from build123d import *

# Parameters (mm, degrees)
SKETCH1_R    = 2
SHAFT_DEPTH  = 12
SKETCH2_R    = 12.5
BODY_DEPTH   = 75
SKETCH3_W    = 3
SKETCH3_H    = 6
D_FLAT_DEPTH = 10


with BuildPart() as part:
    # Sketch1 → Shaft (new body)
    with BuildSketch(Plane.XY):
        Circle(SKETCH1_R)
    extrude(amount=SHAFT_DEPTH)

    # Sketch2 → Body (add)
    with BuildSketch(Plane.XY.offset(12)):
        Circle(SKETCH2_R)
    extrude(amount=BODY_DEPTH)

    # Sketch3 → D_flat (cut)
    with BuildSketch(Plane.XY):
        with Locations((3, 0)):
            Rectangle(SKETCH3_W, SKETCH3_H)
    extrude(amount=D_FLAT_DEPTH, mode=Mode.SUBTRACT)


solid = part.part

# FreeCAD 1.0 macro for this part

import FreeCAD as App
import Part
import Sketcher

V = App.Vector
Q = App.Units.Quantity


def add_polygon(sketch, points):
    """Adds a closed chain of lines whose ends are joined by coincident constraints."""
    first, n = sketch.GeometryCount, len(points)
    for a, b in zip(points, points[1:] + points[:1]):
        sketch.addGeometry(Part.LineSegment(App.Vector(*a, 0), App.Vector(*b, 0)), False)
    for i in range(n):
        sketch.addConstraint(Sketcher.Constraint("Coincident", first + i, 2, first + (i + 1) % n, 1))

doc = App.newDocument("Part")
body = doc.addObject("PartDesign::Body", "Body")

# Sketch on XY plane
sketch1 = body.newObject("Sketcher::SketchObject", "Sketch")
sketch1.AttachmentSupport = (doc.getObject("XY_Plane"), [""])
sketch1.MapMode = "FlatFace"
sketch1.addGeometry(Part.Circle(V(0, 0, 0), V(0, 0, 1), 2), False)
sketch1.addConstraint([
    Sketcher.Constraint("Coincident", 0, 3, -1, 1),
    Sketcher.Constraint("Diameter", 0, Q("4 mm")),
])
pad1 = body.newObject("PartDesign::Pad", "Pad")
pad1.Profile = sketch1
pad1.Length = 12

# Sketch on XY plane
sketch2 = body.newObject("Sketcher::SketchObject", "Sketch001")
sketch2.AttachmentSupport = (doc.getObject("XY_Plane"), [""])
sketch2.MapMode = "FlatFace"
sketch2.AttachmentOffset = App.Placement(V(0, 0, 12), App.Rotation())
sketch2.addGeometry(Part.Circle(V(0, 0, 0), V(0, 0, 1), 12), False)
sketch2.addConstraint([
    Sketcher.Constraint("Coincident", 0, 3, -1, 1),
    Sketcher.Constraint("Diameter", 0, Q("25 mm")),
])
pad2 = body.newObject("PartDesign::Pad", "Pad001")
pad2.Profile = sketch2
pad2.Length = 75

# Sketch on XY plane
sketch3 = body.newObject("Sketcher::SketchObject", "Sketch002")
sketch3.AttachmentSupport = (doc.getObject("XY_Plane"), [""])
sketch3.MapMode = "FlatFace"
add_polygon(sketch3, [(1.5, 3), (1.5, -3), (4.5, -3), (4.5, 3)])  # lines 0-3
sketch3.addConstraint([
    Sketcher.Constraint("Vertical", 0),
    Sketcher.Constraint("Horizontal", 1),
    Sketcher.Constraint("Vertical", 2),
    Sketcher.Constraint("Horizontal", 3),
    Sketcher.Constraint("DistanceX", 1, 1, 1, 2, Q("3 mm")),
    Sketcher.Constraint("DistanceY", 0, 2, 0, 1, Q("6 mm")),
    Sketcher.Constraint("DistanceY", 0, 2, -1, 1, Q("3 mm")),
    Sketcher.Constraint("DistanceX", -1, 1, 0, 2, Q("1.5 mm")),
])
pocket1 = body.newObject("PartDesign::Pocket", "Pocket")
pocket1.Profile = sketch3
pocket1.Length = 10
pocket1.Reversed = True

doc.recompute()
